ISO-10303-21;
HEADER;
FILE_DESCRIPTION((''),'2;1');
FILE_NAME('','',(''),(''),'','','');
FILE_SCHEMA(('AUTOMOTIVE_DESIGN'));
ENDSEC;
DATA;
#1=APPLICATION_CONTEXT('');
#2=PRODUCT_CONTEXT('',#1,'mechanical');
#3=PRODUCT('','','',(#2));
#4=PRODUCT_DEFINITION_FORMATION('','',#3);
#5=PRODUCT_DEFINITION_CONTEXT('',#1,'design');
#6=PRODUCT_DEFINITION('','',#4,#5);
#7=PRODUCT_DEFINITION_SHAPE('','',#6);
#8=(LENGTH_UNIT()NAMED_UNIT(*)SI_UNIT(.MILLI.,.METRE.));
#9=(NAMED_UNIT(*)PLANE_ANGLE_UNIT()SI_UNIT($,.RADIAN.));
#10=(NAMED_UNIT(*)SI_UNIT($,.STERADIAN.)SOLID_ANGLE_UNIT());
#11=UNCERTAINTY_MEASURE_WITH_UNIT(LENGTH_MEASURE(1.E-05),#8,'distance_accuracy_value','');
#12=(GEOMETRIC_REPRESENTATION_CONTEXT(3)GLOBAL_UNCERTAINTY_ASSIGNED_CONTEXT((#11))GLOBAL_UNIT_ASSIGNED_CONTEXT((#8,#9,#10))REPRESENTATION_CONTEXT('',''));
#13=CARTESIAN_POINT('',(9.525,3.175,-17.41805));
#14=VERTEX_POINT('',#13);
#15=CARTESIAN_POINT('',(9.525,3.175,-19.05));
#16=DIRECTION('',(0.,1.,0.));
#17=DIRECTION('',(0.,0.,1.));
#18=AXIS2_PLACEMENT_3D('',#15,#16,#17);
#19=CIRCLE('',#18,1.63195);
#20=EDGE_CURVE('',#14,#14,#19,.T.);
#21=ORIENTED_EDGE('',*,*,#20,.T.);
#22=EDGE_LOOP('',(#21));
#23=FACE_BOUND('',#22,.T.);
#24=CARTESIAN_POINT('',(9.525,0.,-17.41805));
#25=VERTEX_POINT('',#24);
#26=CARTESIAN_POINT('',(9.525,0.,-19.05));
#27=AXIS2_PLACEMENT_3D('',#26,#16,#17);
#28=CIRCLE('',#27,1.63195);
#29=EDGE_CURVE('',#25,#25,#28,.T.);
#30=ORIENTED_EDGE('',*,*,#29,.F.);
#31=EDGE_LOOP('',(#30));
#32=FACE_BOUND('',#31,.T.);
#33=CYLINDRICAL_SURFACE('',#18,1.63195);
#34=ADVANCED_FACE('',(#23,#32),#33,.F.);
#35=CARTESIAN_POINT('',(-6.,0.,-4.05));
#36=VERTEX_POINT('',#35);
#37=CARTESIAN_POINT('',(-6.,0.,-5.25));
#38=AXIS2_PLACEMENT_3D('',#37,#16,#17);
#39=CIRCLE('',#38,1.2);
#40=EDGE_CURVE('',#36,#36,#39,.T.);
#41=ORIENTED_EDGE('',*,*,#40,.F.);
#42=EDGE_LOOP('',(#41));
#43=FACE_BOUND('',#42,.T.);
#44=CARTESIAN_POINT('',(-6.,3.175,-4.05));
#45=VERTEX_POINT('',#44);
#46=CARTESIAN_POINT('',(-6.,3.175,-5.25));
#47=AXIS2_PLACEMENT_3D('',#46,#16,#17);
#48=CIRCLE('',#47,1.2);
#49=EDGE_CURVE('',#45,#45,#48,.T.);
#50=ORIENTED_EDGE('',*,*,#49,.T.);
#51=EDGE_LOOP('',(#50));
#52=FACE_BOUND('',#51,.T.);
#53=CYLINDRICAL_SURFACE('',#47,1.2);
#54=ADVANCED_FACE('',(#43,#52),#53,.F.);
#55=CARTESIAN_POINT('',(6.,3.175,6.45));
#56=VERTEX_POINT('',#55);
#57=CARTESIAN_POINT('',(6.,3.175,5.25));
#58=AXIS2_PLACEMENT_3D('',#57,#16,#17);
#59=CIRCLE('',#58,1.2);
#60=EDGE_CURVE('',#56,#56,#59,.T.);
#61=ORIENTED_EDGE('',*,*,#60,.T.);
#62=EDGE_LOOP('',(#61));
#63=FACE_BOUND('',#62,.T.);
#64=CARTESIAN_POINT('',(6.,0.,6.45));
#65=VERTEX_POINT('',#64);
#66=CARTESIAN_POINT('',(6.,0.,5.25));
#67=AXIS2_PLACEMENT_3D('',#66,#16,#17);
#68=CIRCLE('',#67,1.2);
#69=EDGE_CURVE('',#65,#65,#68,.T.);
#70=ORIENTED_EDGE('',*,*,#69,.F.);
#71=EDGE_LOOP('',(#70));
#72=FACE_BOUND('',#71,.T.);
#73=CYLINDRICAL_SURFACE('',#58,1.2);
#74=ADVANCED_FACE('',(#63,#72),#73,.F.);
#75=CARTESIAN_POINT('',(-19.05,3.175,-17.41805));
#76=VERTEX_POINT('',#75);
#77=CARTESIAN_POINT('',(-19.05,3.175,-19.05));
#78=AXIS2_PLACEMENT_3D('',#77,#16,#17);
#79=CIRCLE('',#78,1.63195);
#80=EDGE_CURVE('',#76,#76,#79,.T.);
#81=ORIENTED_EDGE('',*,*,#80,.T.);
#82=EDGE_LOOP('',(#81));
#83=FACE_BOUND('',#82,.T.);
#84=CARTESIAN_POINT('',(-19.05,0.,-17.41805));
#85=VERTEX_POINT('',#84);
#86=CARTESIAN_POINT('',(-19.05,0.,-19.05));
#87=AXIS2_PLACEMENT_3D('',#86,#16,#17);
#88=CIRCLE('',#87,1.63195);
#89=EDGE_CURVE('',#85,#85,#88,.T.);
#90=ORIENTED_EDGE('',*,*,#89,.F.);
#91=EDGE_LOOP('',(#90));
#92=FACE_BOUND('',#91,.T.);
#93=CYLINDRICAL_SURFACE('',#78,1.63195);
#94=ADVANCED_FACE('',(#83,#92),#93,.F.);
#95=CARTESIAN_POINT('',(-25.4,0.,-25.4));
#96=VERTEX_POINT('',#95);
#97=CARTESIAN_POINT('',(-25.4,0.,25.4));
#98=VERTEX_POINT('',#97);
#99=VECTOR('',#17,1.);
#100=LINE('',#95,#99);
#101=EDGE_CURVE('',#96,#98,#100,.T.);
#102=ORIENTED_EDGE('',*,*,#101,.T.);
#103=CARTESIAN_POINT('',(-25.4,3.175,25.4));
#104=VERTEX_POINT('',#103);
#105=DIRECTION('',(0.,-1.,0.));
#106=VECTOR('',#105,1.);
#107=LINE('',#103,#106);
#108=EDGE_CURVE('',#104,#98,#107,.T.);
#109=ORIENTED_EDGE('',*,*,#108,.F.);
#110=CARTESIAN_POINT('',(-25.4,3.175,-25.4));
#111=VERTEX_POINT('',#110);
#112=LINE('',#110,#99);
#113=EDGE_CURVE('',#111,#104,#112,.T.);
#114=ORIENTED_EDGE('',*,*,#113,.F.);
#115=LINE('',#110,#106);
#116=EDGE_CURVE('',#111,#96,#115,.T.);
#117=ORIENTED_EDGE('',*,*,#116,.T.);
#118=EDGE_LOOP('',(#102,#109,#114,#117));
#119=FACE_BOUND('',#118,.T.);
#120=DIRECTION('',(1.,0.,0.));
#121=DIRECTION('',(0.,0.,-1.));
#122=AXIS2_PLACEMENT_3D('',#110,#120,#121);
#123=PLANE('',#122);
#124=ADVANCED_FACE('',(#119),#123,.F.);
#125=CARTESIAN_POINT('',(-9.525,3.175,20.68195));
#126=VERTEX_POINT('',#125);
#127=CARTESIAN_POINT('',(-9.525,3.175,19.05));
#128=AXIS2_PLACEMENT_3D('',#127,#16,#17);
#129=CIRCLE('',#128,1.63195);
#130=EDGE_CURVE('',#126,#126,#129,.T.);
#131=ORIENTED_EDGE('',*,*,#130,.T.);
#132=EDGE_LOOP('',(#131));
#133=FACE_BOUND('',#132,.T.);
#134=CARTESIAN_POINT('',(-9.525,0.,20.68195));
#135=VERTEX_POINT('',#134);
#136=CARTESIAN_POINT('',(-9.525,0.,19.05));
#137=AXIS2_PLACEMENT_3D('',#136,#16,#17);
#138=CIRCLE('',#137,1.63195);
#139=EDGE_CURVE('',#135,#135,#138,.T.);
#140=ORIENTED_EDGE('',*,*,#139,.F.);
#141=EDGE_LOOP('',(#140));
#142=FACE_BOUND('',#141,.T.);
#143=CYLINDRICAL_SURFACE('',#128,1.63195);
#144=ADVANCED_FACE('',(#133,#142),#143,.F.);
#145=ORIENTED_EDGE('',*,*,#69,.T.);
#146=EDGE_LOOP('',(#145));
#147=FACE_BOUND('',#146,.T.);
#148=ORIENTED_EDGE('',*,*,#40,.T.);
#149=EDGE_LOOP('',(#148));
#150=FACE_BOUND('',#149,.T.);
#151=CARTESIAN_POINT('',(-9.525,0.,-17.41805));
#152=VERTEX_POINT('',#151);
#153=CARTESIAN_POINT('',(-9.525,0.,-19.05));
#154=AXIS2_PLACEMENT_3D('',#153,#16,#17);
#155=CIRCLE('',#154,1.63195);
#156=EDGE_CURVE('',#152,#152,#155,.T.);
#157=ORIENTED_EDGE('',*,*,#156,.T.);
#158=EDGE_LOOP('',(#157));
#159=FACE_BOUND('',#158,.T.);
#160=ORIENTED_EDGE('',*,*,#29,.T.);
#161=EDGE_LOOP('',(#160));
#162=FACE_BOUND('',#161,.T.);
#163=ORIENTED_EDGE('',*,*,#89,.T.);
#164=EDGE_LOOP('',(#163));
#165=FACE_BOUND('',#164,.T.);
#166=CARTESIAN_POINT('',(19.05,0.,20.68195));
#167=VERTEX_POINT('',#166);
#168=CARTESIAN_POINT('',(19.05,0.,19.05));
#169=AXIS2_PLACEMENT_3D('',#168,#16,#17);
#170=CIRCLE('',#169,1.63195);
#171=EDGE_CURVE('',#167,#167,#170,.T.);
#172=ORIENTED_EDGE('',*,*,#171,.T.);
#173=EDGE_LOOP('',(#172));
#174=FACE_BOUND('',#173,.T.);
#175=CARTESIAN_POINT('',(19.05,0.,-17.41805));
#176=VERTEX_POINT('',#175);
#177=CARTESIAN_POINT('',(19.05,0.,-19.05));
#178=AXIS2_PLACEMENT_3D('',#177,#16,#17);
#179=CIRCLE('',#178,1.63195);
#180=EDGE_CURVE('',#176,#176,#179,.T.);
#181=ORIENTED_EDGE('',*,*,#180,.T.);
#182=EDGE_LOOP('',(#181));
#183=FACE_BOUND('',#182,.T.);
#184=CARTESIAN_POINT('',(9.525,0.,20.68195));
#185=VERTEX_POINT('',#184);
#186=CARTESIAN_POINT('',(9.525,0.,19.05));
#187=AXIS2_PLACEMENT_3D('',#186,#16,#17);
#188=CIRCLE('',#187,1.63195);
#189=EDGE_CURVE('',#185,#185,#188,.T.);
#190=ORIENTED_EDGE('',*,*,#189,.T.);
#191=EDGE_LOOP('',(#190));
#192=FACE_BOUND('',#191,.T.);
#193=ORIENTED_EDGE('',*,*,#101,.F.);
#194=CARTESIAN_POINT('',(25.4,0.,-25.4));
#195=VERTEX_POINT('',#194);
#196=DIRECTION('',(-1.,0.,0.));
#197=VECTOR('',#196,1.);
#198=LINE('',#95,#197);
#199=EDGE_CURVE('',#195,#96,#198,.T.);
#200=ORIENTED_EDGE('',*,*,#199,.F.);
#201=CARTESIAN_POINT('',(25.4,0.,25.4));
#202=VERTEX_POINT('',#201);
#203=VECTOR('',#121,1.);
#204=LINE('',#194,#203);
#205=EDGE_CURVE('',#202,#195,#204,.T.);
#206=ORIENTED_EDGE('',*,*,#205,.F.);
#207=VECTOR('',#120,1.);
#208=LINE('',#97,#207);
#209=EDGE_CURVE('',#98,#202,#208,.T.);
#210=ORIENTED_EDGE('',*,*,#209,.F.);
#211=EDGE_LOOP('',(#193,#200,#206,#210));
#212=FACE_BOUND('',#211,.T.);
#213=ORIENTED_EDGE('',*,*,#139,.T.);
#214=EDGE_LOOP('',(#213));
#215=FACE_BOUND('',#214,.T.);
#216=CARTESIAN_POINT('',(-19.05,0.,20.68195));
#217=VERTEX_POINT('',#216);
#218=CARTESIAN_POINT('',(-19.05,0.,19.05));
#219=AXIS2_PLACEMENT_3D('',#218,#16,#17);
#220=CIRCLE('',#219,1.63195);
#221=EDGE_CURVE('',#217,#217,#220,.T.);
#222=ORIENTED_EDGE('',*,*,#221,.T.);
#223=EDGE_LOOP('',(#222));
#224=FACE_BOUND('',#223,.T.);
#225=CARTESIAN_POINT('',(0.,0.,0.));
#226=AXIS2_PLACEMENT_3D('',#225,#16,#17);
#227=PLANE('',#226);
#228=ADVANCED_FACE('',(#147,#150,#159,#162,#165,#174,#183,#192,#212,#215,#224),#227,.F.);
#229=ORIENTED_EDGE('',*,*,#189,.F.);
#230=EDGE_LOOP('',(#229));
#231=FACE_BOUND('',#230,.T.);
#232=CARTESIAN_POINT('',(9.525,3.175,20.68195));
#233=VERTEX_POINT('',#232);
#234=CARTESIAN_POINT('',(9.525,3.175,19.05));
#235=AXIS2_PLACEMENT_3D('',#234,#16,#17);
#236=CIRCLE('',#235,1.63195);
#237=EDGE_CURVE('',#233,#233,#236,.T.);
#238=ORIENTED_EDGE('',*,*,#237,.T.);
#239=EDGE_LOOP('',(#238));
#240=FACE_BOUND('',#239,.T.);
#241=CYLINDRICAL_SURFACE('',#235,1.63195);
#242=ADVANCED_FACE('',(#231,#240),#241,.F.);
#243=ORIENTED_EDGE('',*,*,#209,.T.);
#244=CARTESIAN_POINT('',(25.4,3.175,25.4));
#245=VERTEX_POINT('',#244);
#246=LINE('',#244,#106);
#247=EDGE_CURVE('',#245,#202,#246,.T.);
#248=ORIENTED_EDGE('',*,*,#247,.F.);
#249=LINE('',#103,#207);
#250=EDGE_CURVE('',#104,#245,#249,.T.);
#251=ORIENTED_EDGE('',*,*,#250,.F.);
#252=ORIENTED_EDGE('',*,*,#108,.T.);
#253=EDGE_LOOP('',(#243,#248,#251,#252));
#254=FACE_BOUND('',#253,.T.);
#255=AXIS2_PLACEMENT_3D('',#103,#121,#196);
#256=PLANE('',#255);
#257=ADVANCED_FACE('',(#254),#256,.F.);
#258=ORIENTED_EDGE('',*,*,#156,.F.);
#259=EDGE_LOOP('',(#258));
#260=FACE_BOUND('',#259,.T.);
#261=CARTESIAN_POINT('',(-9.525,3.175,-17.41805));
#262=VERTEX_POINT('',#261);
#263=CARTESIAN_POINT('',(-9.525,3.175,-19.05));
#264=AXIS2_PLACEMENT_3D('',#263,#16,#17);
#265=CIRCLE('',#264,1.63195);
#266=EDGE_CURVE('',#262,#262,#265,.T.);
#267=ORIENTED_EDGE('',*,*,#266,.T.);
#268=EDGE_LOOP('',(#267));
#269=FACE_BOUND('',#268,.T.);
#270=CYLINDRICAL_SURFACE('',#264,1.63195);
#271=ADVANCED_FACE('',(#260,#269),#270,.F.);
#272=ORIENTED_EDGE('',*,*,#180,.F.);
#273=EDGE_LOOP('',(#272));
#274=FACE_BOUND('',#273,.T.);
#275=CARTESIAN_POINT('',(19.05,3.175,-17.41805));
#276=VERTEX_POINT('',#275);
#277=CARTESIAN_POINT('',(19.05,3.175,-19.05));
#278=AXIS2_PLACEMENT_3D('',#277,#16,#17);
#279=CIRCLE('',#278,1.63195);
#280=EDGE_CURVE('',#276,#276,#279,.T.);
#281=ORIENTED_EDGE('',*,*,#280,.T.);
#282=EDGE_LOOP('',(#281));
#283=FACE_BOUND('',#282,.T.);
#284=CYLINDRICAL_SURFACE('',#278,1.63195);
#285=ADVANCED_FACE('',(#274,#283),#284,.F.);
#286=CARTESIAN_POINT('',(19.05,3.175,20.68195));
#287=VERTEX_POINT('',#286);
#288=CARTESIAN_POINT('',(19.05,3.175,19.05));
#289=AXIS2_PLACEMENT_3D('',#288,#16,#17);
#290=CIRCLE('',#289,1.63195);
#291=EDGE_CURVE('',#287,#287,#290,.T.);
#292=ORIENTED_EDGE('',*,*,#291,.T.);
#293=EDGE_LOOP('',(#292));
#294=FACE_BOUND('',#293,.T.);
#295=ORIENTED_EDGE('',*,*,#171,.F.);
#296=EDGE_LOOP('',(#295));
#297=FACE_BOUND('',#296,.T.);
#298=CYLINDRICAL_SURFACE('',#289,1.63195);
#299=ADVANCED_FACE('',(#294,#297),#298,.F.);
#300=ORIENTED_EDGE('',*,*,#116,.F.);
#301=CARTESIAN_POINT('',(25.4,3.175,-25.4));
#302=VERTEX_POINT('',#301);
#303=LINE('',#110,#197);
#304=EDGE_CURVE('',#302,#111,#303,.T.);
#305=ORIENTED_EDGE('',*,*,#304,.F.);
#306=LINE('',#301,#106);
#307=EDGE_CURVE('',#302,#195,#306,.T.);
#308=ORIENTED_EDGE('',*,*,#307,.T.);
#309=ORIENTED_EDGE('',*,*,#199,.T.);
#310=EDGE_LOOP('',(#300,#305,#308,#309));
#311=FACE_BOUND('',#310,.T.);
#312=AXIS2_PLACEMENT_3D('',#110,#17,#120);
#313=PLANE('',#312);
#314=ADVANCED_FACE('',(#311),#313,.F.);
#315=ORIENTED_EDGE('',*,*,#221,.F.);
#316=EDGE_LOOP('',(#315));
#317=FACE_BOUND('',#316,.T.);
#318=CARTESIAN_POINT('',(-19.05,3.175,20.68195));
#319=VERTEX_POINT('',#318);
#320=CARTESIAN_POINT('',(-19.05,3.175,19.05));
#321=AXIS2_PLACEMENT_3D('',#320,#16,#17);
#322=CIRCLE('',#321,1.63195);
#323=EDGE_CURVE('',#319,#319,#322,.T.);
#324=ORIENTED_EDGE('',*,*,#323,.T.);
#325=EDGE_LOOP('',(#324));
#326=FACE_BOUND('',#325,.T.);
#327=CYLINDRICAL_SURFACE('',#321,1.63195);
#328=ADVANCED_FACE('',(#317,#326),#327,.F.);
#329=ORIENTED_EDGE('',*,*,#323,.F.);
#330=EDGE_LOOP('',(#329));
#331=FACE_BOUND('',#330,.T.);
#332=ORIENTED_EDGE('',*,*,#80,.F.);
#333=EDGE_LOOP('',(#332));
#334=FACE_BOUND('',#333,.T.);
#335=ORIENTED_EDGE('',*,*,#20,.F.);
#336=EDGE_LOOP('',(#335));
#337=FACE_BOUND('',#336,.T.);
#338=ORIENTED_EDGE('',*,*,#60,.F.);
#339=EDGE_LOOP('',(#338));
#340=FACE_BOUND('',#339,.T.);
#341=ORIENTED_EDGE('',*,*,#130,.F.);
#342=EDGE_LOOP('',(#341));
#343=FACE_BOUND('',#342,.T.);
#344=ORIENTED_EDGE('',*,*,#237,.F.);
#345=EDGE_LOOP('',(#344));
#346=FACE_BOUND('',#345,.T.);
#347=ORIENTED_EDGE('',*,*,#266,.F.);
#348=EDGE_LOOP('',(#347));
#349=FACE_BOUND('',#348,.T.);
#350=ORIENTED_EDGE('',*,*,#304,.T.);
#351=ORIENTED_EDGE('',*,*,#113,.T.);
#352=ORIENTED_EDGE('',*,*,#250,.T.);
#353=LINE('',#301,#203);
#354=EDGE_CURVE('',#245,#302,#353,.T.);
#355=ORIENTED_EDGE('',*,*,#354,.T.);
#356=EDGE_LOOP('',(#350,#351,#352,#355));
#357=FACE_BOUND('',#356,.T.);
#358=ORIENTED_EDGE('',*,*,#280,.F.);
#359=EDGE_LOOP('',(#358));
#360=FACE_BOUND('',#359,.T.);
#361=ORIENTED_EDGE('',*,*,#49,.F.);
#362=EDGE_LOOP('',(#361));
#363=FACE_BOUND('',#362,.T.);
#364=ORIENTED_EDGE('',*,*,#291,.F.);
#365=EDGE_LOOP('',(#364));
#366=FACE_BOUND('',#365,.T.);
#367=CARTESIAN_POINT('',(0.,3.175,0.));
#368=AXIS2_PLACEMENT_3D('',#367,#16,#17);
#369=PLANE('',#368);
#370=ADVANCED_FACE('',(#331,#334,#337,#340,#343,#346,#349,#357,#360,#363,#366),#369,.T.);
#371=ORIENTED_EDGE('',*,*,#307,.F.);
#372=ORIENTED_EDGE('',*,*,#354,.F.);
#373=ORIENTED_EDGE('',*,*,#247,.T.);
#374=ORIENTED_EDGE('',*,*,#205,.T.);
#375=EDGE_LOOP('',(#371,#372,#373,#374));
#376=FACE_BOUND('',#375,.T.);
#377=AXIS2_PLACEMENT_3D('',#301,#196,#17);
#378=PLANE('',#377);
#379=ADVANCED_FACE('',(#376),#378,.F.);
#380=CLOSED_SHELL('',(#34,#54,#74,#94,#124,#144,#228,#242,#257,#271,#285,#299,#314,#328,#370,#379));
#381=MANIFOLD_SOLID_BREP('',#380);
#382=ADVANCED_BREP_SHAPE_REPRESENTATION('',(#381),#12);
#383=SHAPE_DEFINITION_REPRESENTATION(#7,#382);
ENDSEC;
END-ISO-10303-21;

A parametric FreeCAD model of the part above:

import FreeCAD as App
import Part
import Sketcher
from FreeCAD import Vector
Q = App.Units.Quantity

doc = App.newDocument("Part")
body = doc.addObject("PartDesign::Body", "Body")

# Sketch on XZ plane
sketch1 = body.newObject("Sketcher::SketchObject", "Sketch")
sketch1.AttachmentSupport = (doc.getObject("XZ_Plane"), [""])
sketch1.MapMode = "FlatFace"
sketch1.addGeometry([
    Part.LineSegment(Vector(-25, -25, 0), Vector(-25, 25, 0)),
    Part.LineSegment(Vector(-25, 25, 0), Vector(25, 25, 0)),
    Part.LineSegment(Vector(25, 25, 0), Vector(25, -25, 0)),
    Part.LineSegment(Vector(25, -25, 0), Vector(-25, -25, 0)),
], False)
sketch1.addConstraint([
    Sketcher.Constraint("Coincident", 0, 2, 1, 1),
    Sketcher.Constraint("Coincident", 1, 2, 2, 1),
    Sketcher.Constraint("Coincident", 2, 2, 3, 1),
    Sketcher.Constraint("Coincident", 3, 2, 0, 1),
    Sketcher.Constraint("Vertical", 0),
    Sketcher.Constraint("Horizontal", 1),
    Sketcher.Constraint("Vertical", 2),
    Sketcher.Constraint("Horizontal", 3),
    Sketcher.Constraint("Symmetric", 0, 2, 2, 2, -1, 1),
    Sketcher.Constraint("Equal", 3, 0),
    Sketcher.Constraint("DistanceX", 1, 1, 1, 2, Q("2 in")),
])
pad1 = body.newObject("PartDesign::Pad", "Pad")
pad1.Profile = sketch1
pad1.Length = Q("0.125 in")
pad1.Reversed = True

# Sketch on XZ plane
sketch2 = body.newObject("Sketcher::SketchObject", "Sketch001")
sketch2.AttachmentSupport = (doc.getObject("XZ_Plane"), [""])
sketch2.MapMode = "FlatFace"
sketch2.AttachmentOffset = App.Placement(Vector(0, 0, -0.125 * 25.4), App.Rotation())
sketch2.addGeometry([
    Part.Circle(Vector(6, 5.2, 0), Vector(0, 0, 1), 1.2),
    Part.Circle(Vector(-6, -5.2, 0), Vector(0, 0, 1), 1.2),
], False)
sketch2.addConstraint([
    Sketcher.Constraint("Equal", 0, 1),
    Sketcher.Constraint("Symmetric", 0, 3, 1, 3, -1, 1),
    Sketcher.Constraint("Diameter", 0, 2.4),
    Sketcher.Constraint("DistanceX", -1, 1, 0, 3, 6.0),
    Sketcher.Constraint("DistanceY", -1, 1, 0, 3, 5.25),
])
doc.recompute()
hole = body.newObject("PartDesign::Hole", "Hole")
hole.Profile = sketch2
hole.ThreadType = "None"
hole.Diameter = 2.4
hole.DepthType = "ThroughAll"
hole.Reversed = True

# Sketch on XZ plane
sketch3 = body.newObject("Sketcher::SketchObject", "Sketch002")
sketch3.AttachmentSupport = (doc.getObject("XZ_Plane"), [""])
sketch3.MapMode = "FlatFace"
sketch3.AttachmentOffset = App.Placement(Vector(0, 0, -0.125 * 25.4), App.Rotation())
sketch3.addGeometry([
    Part.Circle(Vector(-19.1, 19.1, 0), Vector(0, 0, 1), 1.6),
    Part.Circle(Vector(19.1, -19.1, 0), Vector(0, 0, 1), 1.6),
    Part.Circle(Vector(19.1, 19.1, 0), Vector(0, 0, 1), 1.6),
    Part.Circle(Vector(-19.1, -19.1, 0), Vector(0, 0, 1), 1.6),
], False)
sketch3.addConstraint([
    Sketcher.Constraint("Equal", 0, 1),
    Sketcher.Constraint("Equal", 1, 2),
    Sketcher.Constraint("Equal", 2, 3),
    Sketcher.Constraint("Symmetric", 0, 3, 1, 3, -1, 1),
    Sketcher.Constraint("Symmetric", 2, 3, 3, 3, -1, 1),
    Sketcher.Constraint("Symmetric", 0, 3, 2, 3, -2),
    Sketcher.Constraint("Diameter", 0, Q("0.1285 in")),
    Sketcher.Constraint("DistanceX", 0, 3, 1, 3, Q("1.5 in")),
    Sketcher.Constraint("DistanceY", 1, 3, 0, 3, Q("1.5 in")),
])
doc.recompute()
hole2 = body.newObject("PartDesign::Hole", "Hole001")
hole2.Profile = sketch3
hole2.ThreadType = "None"
hole2.Diameter = Q("0.1285 in")
hole2.DepthType = "ThroughAll"
hole2.Reversed = True

# Sketch on XZ plane
sketch4 = body.newObject("Sketcher::SketchObject", "Sketch003")
sketch4.AttachmentSupport = (doc.getObject("XZ_Plane"), [""])
sketch4.MapMode = "FlatFace"
sketch4.AttachmentOffset = App.Placement(Vector(0, 0, -0.125 * 25.4), App.Rotation())
sketch4.addGeometry([
    Part.Circle(Vector(-9.5, -19.1, 0), Vector(0, 0, 1), 1.6),
    Part.Circle(Vector(9.5, -19.1, 0), Vector(0, 0, 1), 1.6),
    Part.Circle(Vector(9.5, 19.1, 0), Vector(0, 0, 1), 1.6),
    Part.Circle(Vector(-9.5, 19.1, 0), Vector(0, 0, 1), 1.6),
], False)
sketch4.addConstraint([
    Sketcher.Constraint("Equal", 0, 1),
    Sketcher.Constraint("Equal", 1, 2),
    Sketcher.Constraint("Equal", 2, 3),
    Sketcher.Constraint("Symmetric", 0, 3, 2, 3, -1, 1),
    Sketcher.Constraint("Symmetric", 1, 3, 3, 3, -1, 1),
    Sketcher.Constraint("Symmetric", 0, 3, 1, 3, -2),
    Sketcher.Constraint("Diameter", 0, Q("0.1285 in")),
    Sketcher.Constraint("DistanceY", 1, 3, 2, 3, Q("1.5 in")),
    Sketcher.Constraint("DistanceX", 0, 3, 1, 3, Q("0.75 in")),
])
doc.recompute()
hole3 = body.newObject("PartDesign::Hole", "Hole002")
hole3.Profile = sketch4
hole3.ThreadType = "None"
hole3.Diameter = Q("0.1285 in")
hole3.DepthType = "ThroughAll"
hole3.Reversed = True

doc.recompute()
